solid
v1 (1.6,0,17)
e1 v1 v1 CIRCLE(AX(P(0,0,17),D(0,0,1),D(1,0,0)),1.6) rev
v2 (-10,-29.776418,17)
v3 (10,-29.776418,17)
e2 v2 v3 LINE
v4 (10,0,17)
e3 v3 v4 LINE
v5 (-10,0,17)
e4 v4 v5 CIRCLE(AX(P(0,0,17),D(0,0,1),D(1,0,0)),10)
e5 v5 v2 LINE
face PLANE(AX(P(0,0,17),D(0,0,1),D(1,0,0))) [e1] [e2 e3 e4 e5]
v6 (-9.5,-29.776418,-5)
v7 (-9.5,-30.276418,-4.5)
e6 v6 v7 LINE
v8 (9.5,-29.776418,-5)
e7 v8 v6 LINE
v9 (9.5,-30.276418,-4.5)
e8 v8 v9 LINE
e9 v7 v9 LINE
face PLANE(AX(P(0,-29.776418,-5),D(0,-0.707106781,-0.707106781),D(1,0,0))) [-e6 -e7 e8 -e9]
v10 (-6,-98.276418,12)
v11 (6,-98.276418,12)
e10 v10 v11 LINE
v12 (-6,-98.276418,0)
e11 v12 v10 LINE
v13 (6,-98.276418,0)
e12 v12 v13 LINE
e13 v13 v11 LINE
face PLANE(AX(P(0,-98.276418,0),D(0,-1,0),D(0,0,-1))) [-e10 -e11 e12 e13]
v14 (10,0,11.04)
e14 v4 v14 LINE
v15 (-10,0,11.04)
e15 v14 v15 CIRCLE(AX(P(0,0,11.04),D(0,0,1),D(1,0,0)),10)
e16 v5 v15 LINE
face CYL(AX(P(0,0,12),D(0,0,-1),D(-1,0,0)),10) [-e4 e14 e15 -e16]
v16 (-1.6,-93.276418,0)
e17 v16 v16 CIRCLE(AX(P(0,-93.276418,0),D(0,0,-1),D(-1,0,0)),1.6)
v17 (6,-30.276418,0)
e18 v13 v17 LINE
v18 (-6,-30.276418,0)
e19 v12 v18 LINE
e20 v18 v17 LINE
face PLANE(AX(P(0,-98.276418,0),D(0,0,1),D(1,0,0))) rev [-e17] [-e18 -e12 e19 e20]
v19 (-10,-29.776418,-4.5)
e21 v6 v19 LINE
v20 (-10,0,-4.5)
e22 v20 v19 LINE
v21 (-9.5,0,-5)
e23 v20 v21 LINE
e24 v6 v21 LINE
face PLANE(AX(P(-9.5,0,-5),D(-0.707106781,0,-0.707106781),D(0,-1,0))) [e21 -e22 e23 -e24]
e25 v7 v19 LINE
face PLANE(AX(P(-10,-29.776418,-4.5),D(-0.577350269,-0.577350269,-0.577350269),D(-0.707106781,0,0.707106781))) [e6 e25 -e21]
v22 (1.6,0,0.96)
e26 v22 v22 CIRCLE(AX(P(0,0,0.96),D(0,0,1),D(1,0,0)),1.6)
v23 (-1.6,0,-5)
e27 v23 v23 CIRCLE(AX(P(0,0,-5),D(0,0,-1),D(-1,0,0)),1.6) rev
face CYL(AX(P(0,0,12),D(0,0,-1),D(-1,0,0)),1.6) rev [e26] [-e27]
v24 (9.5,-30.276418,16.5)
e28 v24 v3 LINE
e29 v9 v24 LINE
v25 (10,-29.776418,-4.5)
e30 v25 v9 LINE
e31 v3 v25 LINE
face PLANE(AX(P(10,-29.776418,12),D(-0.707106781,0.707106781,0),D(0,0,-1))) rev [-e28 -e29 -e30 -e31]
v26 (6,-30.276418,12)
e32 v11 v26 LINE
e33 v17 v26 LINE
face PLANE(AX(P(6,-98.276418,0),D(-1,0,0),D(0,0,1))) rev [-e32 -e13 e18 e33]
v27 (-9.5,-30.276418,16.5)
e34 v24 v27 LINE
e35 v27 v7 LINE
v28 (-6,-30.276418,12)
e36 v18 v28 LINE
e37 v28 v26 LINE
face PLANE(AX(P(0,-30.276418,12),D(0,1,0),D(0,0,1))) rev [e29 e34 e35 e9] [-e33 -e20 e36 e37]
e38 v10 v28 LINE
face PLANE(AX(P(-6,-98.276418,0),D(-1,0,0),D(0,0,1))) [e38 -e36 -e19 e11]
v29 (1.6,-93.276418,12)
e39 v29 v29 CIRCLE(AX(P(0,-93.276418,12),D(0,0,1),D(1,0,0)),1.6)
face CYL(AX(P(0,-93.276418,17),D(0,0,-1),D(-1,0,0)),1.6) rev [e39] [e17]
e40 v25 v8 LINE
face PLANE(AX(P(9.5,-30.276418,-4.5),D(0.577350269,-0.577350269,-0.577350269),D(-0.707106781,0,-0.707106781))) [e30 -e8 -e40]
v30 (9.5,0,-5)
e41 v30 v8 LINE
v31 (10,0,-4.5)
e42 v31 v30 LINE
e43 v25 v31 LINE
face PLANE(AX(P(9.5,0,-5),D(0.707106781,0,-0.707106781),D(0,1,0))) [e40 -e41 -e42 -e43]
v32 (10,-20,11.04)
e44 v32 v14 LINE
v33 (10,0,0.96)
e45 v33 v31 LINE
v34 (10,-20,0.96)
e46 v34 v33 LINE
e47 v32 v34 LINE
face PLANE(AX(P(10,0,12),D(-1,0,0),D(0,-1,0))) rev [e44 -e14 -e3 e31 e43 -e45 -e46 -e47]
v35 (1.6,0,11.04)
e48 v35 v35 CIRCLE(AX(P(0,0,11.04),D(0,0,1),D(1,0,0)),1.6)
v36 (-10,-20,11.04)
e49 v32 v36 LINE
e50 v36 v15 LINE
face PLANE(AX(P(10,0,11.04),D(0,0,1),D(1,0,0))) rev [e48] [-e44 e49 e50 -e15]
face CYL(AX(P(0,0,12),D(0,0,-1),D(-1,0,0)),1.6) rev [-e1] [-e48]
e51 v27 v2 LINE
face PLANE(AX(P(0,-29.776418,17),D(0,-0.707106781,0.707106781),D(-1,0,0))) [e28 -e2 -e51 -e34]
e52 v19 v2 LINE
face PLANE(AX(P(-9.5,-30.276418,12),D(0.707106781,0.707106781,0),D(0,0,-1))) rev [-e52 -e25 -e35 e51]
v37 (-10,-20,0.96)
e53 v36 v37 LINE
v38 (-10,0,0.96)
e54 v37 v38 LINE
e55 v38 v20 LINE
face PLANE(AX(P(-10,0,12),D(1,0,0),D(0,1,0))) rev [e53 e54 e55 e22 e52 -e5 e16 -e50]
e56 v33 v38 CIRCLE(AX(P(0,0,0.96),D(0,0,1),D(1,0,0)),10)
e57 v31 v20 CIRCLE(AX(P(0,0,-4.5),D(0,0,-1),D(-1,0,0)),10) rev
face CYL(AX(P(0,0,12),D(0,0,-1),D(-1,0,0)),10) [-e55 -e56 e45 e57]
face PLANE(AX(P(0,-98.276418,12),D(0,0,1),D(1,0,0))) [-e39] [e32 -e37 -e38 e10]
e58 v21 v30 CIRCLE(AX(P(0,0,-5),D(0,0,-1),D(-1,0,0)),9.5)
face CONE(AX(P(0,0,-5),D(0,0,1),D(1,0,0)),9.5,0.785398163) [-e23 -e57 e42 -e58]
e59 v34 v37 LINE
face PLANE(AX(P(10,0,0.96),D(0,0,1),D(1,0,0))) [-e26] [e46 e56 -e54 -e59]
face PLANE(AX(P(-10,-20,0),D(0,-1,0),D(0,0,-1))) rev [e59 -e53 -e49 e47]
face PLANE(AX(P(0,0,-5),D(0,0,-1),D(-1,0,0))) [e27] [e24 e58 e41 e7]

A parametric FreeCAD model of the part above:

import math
import FreeCAD as App
import Part
import Sketcher
from FreeCAD import Vector
Q = App.Units.Quantity


def edges_at(feature, points):
    """Names of the edges that pass closest to the given points."""
    edges = feature.Shape.Edges
    near = lambda p: min(range(len(edges)), key=lambda i: edges[i].distToShape(Part.Vertex(*p))[0])
    return sorted({f"Edge{near(p) + 1}" for p in points})

doc = App.newDocument("Part")
body = doc.addObject("PartDesign::Body", "Body")

# Sketch on XY plane
sketch1 = doc.addObject("Sketcher::SketchObject", "Sketch")
body.addObject(sketch1)
sketch1.AttachmentSupport = (doc.XY_Plane, [""])
sketch1.MapMode = "FlatFace"
sketch1.addGeometry(Part.LineSegment(Vector(-10, 0, 0), Vector(-10, -30.3, 0)), False)
sketch1.addGeometry(Part.LineSegment(Vector(-10, -30.3, 0), Vector(10, -30.3, 0)), False)
sketch1.addGeometry(Part.LineSegment(Vector(10, -30.3, 0), Vector(10, 0, 0)), False)
sketch1.addGeometry(Part.ArcOfCircle(Part.Circle(Vector(0, 0, 0), Vector(0, 0, 1), 10), math.radians(0), math.radians(180)), False)
sketch1.addGeometry(Part.Circle(Vector(0, 0, 0), Vector(0, 0, 1), 1.6), False)
sketch1.addConstraint(Sketcher.Constraint("Coincident", 0, 2, 1, 1))
sketch1.addConstraint(Sketcher.Constraint("Coincident", 1, 2, 2, 1))
sketch1.addConstraint(Sketcher.Constraint("Tangent", 2, 2, 3, 1))
sketch1.addConstraint(Sketcher.Constraint("Tangent", 3, 2, 0, 1))
sketch1.addConstraint(Sketcher.Constraint("Vertical", 0))
sketch1.addConstraint(Sketcher.Constraint("Horizontal", 1))
sketch1.addConstraint(Sketcher.Constraint("Vertical", 2))
sketch1.addConstraint(Sketcher.Constraint("Coincident", 3, 3, -1, 1))
sketch1.addConstraint(Sketcher.Constraint("Coincident", 4, 3, -1, 1))
sketch1.addConstraint(Sketcher.Constraint("Radius", 3, Q("10 mm")))
sketch1.addConstraint(Sketcher.Constraint("Diameter", 4, Q("3.2 mm")))
sketch1.addConstraint(Sketcher.Constraint("DistanceY", 0, 2, 0, 1, Q("30.276418 mm")))
pad1 = doc.addObject("PartDesign::Pad", "Pad")
body.addObject(pad1)
pad1.Profile = sketch1
pad1.Length = 12

# Sketch on YZ plane
sketch2 = doc.addObject("Sketcher::SketchObject", "Sketch001")
body.addObject(sketch2)
sketch2.AttachmentSupport = (doc.YZ_Plane, [""])
sketch2.MapMode = "FlatFace"
sketch2.AttachmentOffset = App.Placement(Vector(0, 0, 10), App.Rotation())
sketch2.addGeometry(Part.LineSegment(Vector(15.780779, 3, 0), Vector(15.780779, 9, 0)), False)
sketch2.addGeometry(Part.LineSegment(Vector(15.780779, 9, 0), Vector(0, 9, 0)), False)
sketch2.addGeometry(Part.LineSegment(Vector(0, 9, 0), Vector(-20, 8.600534, 0)), False)
sketch2.addGeometry(Part.LineSegment(Vector(-20, 8.600534, 0), Vector(-20, 3, 0)), False)
sketch2.addGeometry(Part.LineSegment(Vector(-20, 3, 0), Vector(15.780779, 3, 0)), False)
sketch2.addConstraint(Sketcher.Constraint("Coincident", 0, 2, 1, 1))
sketch2.addConstraint(Sketcher.Constraint("Coincident", 1, 2, 2, 1))
sketch2.addConstraint(Sketcher.Constraint("Coincident", 2, 2, 3, 1))
sketch2.addConstraint(Sketcher.Constraint("Coincident", 3, 2, 4, 1))
sketch2.addConstraint(Sketcher.Constraint("Coincident", 4, 2, 0, 1))
sketch2.addConstraint(Sketcher.Constraint("Vertical", 0))
sketch2.addConstraint(Sketcher.Constraint("Horizontal", 1))
sketch2.addConstraint(Sketcher.Constraint("Vertical", 3))
sketch2.addConstraint(Sketcher.Constraint("Horizontal", 4))
sketch2.addConstraint(Sketcher.Constraint("PointOnObject", 1, 2, -2))
sketch2.addConstraint(Sketcher.Constraint("DistanceY", 0, 1, 0, 2, Q("6 mm")))
sketch2.addConstraint(Sketcher.Constraint("DistanceY", -1, 1, 0, 2, Q("9 mm")))
sketch2.addConstraint(Sketcher.Constraint("DistanceX", 2, 2, -1, 1, Q("20 mm")))
sketch2.addConstraint(Sketcher.Constraint("DistanceX", 1, 2, 1, 1, Q("15.780779 mm")))
sketch2.addConstraint(Sketcher.Constraint("Distance", 2, Q("20.003989 mm")))
pocket1 = doc.addObject("PartDesign::Pocket", "Pocket")
body.addObject(pocket1)
pocket1.Profile = sketch2
pocket1.Type = "ThroughAll"

# Sketch on YZ plane
sketch3 = doc.addObject("Sketcher::SketchObject", "Sketch002")
body.addObject(sketch3)
sketch3.AttachmentSupport = (doc.YZ_Plane, [""])
sketch3.MapMode = "FlatFace"
sketch3.AttachmentOffset = App.Placement(Vector(0, 0, 10), App.Rotation())
sketch3.addGeometry(Part.LineSegment(Vector(0, 9, 0), Vector(-20, 9, 0)), False)
sketch3.addGeometry(Part.LineSegment(Vector(-20, 9, 0), Vector(-20, 8.6, 0)), False)
sketch3.addGeometry(Part.LineSegment(Vector(-20, 8.6, 0), Vector(0, 9, 0)), False)
sketch3.addConstraint(Sketcher.Constraint("Coincident", 0, 2, 1, 1))
sketch3.addConstraint(Sketcher.Constraint("Coincident", 1, 2, 2, 1))
sketch3.addConstraint(Sketcher.Constraint("Coincident", 2, 2, 0, 1))
sketch3.addConstraint(Sketcher.Constraint("Horizontal", 0))
sketch3.addConstraint(Sketcher.Constraint("Vertical", 1))
sketch3.addConstraint(Sketcher.Constraint("PointOnObject", 2, 2, -2))
sketch3.addConstraint(Sketcher.Constraint("DistanceX", 0, 2, 0, 1, Q("20 mm")))
sketch3.addConstraint(Sketcher.Constraint("DistanceY", -1, 1, 0, 2, Q("9 mm")))
sketch3.addConstraint(Sketcher.Constraint("Distance", 2, Q("20.003989 mm")))
pocket2 = doc.addObject("PartDesign::Pocket", "Pocket001")
body.addObject(pocket2)
pocket2.Profile = sketch3
pocket2.Type = "ThroughAll"

# Sketch on XY plane
sketch4 = doc.addObject("Sketcher::SketchObject", "Sketch003")
body.addObject(sketch4)
sketch4.AttachmentSupport = (doc.XY_Plane, [""])
sketch4.MapMode = "FlatFace"
sketch4.AttachmentOffset = App.Placement(Vector(0, 0, 12), App.Rotation())
sketch4.addGeometry(Part.ArcOfCircle(Part.Circle(Vector(0, 0, 0), Vector(0, 0, 1), 10), math.radians(0), math.radians(180)), False)
sketch4.addGeometry(Part.LineSegment(Vector(-10, 0, 0), Vector(-10, -30.3, 0)), False)
sketch4.addGeometry(Part.LineSegment(Vector(-10, -30.3, 0), Vector(10, -30.3, 0)), False)
sketch4.addGeometry(Part.LineSegment(Vector(10, -30.3, 0), Vector(10, 0, 0)), False)
sketch4.addGeometry(Part.Circle(Vector(0, 0, 0), Vector(0, 0, 1), 1.6), False)
sketch4.addConstraint(Sketcher.Constraint("Tangent", 0, 2, 1, 1))
sketch4.addConstraint(Sketcher.Constraint("Coincident", 1, 2, 2, 1))
sketch4.addConstraint(Sketcher.Constraint("Coincident", 2, 2, 3, 1))
sketch4.addConstraint(Sketcher.Constraint("Tangent", 3, 2, 0, 1))
sketch4.addConstraint(Sketcher.Constraint("Vertical", 1))
sketch4.addConstraint(Sketcher.Constraint("Horizontal", 2))
sketch4.addConstraint(Sketcher.Constraint("Vertical", 3))
sketch4.addConstraint(Sketcher.Constraint("Coincident", 0, 3, -1, 1))
sketch4.addConstraint(Sketcher.Constraint("Coincident", 4, 3, -1, 1))
sketch4.addConstraint(Sketcher.Constraint("Radius", 0, Q("10 mm")))
sketch4.addConstraint(Sketcher.Constraint("Diameter", 4, Q("3.2 mm")))
sketch4.addConstraint(Sketcher.Constraint("DistanceY", 1, 2, 1, 1, Q("30.276418 mm")))
pad2 = doc.addObject("PartDesign::Pad", "Pad001")
body.addObject(pad2)
pad2.Profile = sketch4
pad2.Length = 5

# Sketch on XY plane
sketch5 = doc.addObject("Sketcher::SketchObject", "Sketch004")
body.addObject(sketch5)
sketch5.AttachmentSupport = (doc.XY_Plane, [""])
sketch5.MapMode = "FlatFace"
sketch5.addGeometry(Part.ArcOfCircle(Part.Circle(Vector(0, 0, 0), Vector(0, 0, 1), 10), math.radians(0), math.radians(180)), False)
sketch5.addGeometry(Part.LineSegment(Vector(10, 0, 0), Vector(10, -30.3, 0)), False)
sketch5.addGeometry(Part.LineSegment(Vector(10, -30.3, 0), Vector(-10, -30.3, 0)), False)
sketch5.addGeometry(Part.LineSegment(Vector(-10, -30.3, 0), Vector(-10, 0, 0)), False)
sketch5.addGeometry(Part.Circle(Vector(0, 0, 0), Vector(0, 0, 1), 1.6), False)
sketch5.addConstraint(Sketcher.Constraint("Tangent", 0, 1, 1, 1))
sketch5.addConstraint(Sketcher.Constraint("Coincident", 1, 2, 2, 1))
sketch5.addConstraint(Sketcher.Constraint("Coincident", 2, 2, 3, 1))
sketch5.addConstraint(Sketcher.Constraint("Tangent", 3, 2, 0, 2))
sketch5.addConstraint(Sketcher.Constraint("Vertical", 1))
sketch5.addConstraint(Sketcher.Constraint("Horizontal", 2))
sketch5.addConstraint(Sketcher.Constraint("Vertical", 3))
sketch5.addConstraint(Sketcher.Constraint("Coincident", 0, 3, -1, 1))
sketch5.addConstraint(Sketcher.Constraint("Coincident", 4, 3, -1, 1))
sketch5.addConstraint(Sketcher.Constraint("Radius", 0, Q("10 mm")))
sketch5.addConstraint(Sketcher.Constraint("Diameter", 4, Q("3.2 mm")))
sketch5.addConstraint(Sketcher.Constraint("DistanceY", 1, 2, 1, 1, Q("30.276418 mm")))
pad3 = doc.addObject("PartDesign::Pad", "Pad002")
body.addObject(pad3)
pad3.Profile = sketch5
pad3.Length = 5
pad3.Reversed = True

# Sketch on YZ plane
sketch6 = doc.addObject("Sketcher::SketchObject", "Sketch005")
body.addObject(sketch6)
sketch6.AttachmentSupport = (doc.YZ_Plane, [""])
sketch6.MapMode = "FlatFace"
sketch6.AttachmentOffset = App.Placement(Vector(0, 0, -10), App.Rotation())
sketch6.addGeometry(Part.LineSegment(Vector(10, 11, 0), Vector(10, 1, 0)), False)
sketch6.addGeometry(Part.LineSegment(Vector(10, 1, 0), Vector(-20, 1, 0)), False)
sketch6.addGeometry(Part.LineSegment(Vector(-20, 1, 0), Vector(-20, 11, 0)), False)
sketch6.addGeometry(Part.LineSegment(Vector(-20, 11, 0), Vector(10, 11, 0)), False)
sketch6.addConstraint(Sketcher.Constraint("Coincident", 0, 2, 1, 1))
sketch6.addConstraint(Sketcher.Constraint("Coincident", 1, 2, 2, 1))
sketch6.addConstraint(Sketcher.Constraint("Coincident", 2, 2, 3, 1))
sketch6.addConstraint(Sketcher.Constraint("Coincident", 3, 2, 0, 1))
sketch6.addConstraint(Sketcher.Constraint("Vertical", 0))
sketch6.addConstraint(Sketcher.Constraint("Horizontal", 1))
sketch6.addConstraint(Sketcher.Constraint("Vertical", 2))
sketch6.addConstraint(Sketcher.Constraint("Horizontal", 3))
sketch6.addConstraint(Sketcher.Constraint("DistanceX", 1, 2, 1, 1, Q("30 mm")))
sketch6.addConstraint(Sketcher.Constraint("DistanceX", -1, 1, 0, 2, Q("10 mm")))
sketch6.addConstraint(Sketcher.Constraint("DistanceY", 0, 2, 0, 1, Q("10.08 mm")))
sketch6.addConstraint(Sketcher.Constraint("DistanceY", -1, 1, 0, 2, Q("0.96 mm")))
pocket3 = doc.addObject("PartDesign::Pocket", "Pocket002")
body.addObject(pocket3)
pocket3.Profile = sketch6
pocket3.Type = "ThroughAll"
pocket3.Reversed = True

# Sketch on XZ plane
sketch7 = doc.addObject("Sketcher::SketchObject", "Sketch006")
body.addObject(sketch7)
sketch7.AttachmentSupport = (doc.XZ_Plane, [""])
sketch7.MapMode = "FlatFace"
sketch7.AttachmentOffset = App.Placement(Vector(0, 0, 30.276418), App.Rotation())
sketch7.addGeometry(Part.LineSegment(Vector(6, 12, 0), Vector(-6, 12, 0)), False)
sketch7.addGeometry(Part.LineSegment(Vector(-6, 12, 0), Vector(-6, 0, 0)), False)
sketch7.addGeometry(Part.LineSegment(Vector(-6, 0, 0), Vector(6, 0, 0)), False)
sketch7.addGeometry(Part.LineSegment(Vector(6, 0, 0), Vector(6, 12, 0)), False)
sketch7.addConstraint(Sketcher.Constraint("Coincident", 0, 2, 1, 1))
sketch7.addConstraint(Sketcher.Constraint("Coincident", 1, 2, 2, 1))
sketch7.addConstraint(Sketcher.Constraint("Coincident", 2, 2, 3, 1))
sketch7.addConstraint(Sketcher.Constraint("Coincident", 3, 2, 0, 1))
sketch7.addConstraint(Sketcher.Constraint("Horizontal", 0))
sketch7.addConstraint(Sketcher.Constraint("Vertical", 1))
sketch7.addConstraint(Sketcher.Constraint("Horizontal", 2))
sketch7.addConstraint(Sketcher.Constraint("Vertical", 3))
sketch7.addConstraint(Sketcher.Constraint("Symmetric", 1, 2, 2, 2, -1, 1))
sketch7.addConstraint(Sketcher.Constraint("Equal", 2, 1))
sketch7.addConstraint(Sketcher.Constraint("DistanceX", 0, 2, 0, 1, Q("12 mm")))
pad4 = doc.addObject("PartDesign::Pad", "Pad003")
body.addObject(pad4)
pad4.Profile = sketch7
pad4.Length = 68

# Sketch on XY plane
sketch8 = doc.addObject("Sketcher::SketchObject", "Sketch007")
body.addObject(sketch8)
sketch8.AttachmentSupport = (doc.XY_Plane, [""])
sketch8.MapMode = "FlatFace"
sketch8.addGeometry(Part.Circle(Vector(0, -93.3, 0), Vector(0, 0, 1), 1.6), False)
sketch8.addConstraint(Sketcher.Constraint("PointOnObject", 0, 3, -2))
sketch8.addConstraint(Sketcher.Constraint("Diameter", 0, Q("3.2 mm")))
sketch8.addConstraint(Sketcher.Constraint("DistanceY", 0, 3, -1, 1, Q("93.276418 mm")))
pocket4 = doc.addObject("PartDesign::Pocket", "Pocket003")
body.addObject(pocket4)
pocket4.Profile = sketch8
pocket4.Type = "ThroughAll"
pocket4.Reversed = True
doc.recompute()

chamfer = doc.addObject("PartDesign::Chamfer", "Chamfer")
body.addObject(chamfer)
chamfer.Base = (pocket4, edges_at(pocket4, [
    (10, -30.276, 6),
    (-10, -30.276, 6),
    (0, -30.276, 17),
    (0, 10, -5),
    (10, -15.138, -5),
    (0, -30.276, -5),
    (-10, -15.138, -5),
]))
chamfer.Size = 0.5

doc.recompute()
